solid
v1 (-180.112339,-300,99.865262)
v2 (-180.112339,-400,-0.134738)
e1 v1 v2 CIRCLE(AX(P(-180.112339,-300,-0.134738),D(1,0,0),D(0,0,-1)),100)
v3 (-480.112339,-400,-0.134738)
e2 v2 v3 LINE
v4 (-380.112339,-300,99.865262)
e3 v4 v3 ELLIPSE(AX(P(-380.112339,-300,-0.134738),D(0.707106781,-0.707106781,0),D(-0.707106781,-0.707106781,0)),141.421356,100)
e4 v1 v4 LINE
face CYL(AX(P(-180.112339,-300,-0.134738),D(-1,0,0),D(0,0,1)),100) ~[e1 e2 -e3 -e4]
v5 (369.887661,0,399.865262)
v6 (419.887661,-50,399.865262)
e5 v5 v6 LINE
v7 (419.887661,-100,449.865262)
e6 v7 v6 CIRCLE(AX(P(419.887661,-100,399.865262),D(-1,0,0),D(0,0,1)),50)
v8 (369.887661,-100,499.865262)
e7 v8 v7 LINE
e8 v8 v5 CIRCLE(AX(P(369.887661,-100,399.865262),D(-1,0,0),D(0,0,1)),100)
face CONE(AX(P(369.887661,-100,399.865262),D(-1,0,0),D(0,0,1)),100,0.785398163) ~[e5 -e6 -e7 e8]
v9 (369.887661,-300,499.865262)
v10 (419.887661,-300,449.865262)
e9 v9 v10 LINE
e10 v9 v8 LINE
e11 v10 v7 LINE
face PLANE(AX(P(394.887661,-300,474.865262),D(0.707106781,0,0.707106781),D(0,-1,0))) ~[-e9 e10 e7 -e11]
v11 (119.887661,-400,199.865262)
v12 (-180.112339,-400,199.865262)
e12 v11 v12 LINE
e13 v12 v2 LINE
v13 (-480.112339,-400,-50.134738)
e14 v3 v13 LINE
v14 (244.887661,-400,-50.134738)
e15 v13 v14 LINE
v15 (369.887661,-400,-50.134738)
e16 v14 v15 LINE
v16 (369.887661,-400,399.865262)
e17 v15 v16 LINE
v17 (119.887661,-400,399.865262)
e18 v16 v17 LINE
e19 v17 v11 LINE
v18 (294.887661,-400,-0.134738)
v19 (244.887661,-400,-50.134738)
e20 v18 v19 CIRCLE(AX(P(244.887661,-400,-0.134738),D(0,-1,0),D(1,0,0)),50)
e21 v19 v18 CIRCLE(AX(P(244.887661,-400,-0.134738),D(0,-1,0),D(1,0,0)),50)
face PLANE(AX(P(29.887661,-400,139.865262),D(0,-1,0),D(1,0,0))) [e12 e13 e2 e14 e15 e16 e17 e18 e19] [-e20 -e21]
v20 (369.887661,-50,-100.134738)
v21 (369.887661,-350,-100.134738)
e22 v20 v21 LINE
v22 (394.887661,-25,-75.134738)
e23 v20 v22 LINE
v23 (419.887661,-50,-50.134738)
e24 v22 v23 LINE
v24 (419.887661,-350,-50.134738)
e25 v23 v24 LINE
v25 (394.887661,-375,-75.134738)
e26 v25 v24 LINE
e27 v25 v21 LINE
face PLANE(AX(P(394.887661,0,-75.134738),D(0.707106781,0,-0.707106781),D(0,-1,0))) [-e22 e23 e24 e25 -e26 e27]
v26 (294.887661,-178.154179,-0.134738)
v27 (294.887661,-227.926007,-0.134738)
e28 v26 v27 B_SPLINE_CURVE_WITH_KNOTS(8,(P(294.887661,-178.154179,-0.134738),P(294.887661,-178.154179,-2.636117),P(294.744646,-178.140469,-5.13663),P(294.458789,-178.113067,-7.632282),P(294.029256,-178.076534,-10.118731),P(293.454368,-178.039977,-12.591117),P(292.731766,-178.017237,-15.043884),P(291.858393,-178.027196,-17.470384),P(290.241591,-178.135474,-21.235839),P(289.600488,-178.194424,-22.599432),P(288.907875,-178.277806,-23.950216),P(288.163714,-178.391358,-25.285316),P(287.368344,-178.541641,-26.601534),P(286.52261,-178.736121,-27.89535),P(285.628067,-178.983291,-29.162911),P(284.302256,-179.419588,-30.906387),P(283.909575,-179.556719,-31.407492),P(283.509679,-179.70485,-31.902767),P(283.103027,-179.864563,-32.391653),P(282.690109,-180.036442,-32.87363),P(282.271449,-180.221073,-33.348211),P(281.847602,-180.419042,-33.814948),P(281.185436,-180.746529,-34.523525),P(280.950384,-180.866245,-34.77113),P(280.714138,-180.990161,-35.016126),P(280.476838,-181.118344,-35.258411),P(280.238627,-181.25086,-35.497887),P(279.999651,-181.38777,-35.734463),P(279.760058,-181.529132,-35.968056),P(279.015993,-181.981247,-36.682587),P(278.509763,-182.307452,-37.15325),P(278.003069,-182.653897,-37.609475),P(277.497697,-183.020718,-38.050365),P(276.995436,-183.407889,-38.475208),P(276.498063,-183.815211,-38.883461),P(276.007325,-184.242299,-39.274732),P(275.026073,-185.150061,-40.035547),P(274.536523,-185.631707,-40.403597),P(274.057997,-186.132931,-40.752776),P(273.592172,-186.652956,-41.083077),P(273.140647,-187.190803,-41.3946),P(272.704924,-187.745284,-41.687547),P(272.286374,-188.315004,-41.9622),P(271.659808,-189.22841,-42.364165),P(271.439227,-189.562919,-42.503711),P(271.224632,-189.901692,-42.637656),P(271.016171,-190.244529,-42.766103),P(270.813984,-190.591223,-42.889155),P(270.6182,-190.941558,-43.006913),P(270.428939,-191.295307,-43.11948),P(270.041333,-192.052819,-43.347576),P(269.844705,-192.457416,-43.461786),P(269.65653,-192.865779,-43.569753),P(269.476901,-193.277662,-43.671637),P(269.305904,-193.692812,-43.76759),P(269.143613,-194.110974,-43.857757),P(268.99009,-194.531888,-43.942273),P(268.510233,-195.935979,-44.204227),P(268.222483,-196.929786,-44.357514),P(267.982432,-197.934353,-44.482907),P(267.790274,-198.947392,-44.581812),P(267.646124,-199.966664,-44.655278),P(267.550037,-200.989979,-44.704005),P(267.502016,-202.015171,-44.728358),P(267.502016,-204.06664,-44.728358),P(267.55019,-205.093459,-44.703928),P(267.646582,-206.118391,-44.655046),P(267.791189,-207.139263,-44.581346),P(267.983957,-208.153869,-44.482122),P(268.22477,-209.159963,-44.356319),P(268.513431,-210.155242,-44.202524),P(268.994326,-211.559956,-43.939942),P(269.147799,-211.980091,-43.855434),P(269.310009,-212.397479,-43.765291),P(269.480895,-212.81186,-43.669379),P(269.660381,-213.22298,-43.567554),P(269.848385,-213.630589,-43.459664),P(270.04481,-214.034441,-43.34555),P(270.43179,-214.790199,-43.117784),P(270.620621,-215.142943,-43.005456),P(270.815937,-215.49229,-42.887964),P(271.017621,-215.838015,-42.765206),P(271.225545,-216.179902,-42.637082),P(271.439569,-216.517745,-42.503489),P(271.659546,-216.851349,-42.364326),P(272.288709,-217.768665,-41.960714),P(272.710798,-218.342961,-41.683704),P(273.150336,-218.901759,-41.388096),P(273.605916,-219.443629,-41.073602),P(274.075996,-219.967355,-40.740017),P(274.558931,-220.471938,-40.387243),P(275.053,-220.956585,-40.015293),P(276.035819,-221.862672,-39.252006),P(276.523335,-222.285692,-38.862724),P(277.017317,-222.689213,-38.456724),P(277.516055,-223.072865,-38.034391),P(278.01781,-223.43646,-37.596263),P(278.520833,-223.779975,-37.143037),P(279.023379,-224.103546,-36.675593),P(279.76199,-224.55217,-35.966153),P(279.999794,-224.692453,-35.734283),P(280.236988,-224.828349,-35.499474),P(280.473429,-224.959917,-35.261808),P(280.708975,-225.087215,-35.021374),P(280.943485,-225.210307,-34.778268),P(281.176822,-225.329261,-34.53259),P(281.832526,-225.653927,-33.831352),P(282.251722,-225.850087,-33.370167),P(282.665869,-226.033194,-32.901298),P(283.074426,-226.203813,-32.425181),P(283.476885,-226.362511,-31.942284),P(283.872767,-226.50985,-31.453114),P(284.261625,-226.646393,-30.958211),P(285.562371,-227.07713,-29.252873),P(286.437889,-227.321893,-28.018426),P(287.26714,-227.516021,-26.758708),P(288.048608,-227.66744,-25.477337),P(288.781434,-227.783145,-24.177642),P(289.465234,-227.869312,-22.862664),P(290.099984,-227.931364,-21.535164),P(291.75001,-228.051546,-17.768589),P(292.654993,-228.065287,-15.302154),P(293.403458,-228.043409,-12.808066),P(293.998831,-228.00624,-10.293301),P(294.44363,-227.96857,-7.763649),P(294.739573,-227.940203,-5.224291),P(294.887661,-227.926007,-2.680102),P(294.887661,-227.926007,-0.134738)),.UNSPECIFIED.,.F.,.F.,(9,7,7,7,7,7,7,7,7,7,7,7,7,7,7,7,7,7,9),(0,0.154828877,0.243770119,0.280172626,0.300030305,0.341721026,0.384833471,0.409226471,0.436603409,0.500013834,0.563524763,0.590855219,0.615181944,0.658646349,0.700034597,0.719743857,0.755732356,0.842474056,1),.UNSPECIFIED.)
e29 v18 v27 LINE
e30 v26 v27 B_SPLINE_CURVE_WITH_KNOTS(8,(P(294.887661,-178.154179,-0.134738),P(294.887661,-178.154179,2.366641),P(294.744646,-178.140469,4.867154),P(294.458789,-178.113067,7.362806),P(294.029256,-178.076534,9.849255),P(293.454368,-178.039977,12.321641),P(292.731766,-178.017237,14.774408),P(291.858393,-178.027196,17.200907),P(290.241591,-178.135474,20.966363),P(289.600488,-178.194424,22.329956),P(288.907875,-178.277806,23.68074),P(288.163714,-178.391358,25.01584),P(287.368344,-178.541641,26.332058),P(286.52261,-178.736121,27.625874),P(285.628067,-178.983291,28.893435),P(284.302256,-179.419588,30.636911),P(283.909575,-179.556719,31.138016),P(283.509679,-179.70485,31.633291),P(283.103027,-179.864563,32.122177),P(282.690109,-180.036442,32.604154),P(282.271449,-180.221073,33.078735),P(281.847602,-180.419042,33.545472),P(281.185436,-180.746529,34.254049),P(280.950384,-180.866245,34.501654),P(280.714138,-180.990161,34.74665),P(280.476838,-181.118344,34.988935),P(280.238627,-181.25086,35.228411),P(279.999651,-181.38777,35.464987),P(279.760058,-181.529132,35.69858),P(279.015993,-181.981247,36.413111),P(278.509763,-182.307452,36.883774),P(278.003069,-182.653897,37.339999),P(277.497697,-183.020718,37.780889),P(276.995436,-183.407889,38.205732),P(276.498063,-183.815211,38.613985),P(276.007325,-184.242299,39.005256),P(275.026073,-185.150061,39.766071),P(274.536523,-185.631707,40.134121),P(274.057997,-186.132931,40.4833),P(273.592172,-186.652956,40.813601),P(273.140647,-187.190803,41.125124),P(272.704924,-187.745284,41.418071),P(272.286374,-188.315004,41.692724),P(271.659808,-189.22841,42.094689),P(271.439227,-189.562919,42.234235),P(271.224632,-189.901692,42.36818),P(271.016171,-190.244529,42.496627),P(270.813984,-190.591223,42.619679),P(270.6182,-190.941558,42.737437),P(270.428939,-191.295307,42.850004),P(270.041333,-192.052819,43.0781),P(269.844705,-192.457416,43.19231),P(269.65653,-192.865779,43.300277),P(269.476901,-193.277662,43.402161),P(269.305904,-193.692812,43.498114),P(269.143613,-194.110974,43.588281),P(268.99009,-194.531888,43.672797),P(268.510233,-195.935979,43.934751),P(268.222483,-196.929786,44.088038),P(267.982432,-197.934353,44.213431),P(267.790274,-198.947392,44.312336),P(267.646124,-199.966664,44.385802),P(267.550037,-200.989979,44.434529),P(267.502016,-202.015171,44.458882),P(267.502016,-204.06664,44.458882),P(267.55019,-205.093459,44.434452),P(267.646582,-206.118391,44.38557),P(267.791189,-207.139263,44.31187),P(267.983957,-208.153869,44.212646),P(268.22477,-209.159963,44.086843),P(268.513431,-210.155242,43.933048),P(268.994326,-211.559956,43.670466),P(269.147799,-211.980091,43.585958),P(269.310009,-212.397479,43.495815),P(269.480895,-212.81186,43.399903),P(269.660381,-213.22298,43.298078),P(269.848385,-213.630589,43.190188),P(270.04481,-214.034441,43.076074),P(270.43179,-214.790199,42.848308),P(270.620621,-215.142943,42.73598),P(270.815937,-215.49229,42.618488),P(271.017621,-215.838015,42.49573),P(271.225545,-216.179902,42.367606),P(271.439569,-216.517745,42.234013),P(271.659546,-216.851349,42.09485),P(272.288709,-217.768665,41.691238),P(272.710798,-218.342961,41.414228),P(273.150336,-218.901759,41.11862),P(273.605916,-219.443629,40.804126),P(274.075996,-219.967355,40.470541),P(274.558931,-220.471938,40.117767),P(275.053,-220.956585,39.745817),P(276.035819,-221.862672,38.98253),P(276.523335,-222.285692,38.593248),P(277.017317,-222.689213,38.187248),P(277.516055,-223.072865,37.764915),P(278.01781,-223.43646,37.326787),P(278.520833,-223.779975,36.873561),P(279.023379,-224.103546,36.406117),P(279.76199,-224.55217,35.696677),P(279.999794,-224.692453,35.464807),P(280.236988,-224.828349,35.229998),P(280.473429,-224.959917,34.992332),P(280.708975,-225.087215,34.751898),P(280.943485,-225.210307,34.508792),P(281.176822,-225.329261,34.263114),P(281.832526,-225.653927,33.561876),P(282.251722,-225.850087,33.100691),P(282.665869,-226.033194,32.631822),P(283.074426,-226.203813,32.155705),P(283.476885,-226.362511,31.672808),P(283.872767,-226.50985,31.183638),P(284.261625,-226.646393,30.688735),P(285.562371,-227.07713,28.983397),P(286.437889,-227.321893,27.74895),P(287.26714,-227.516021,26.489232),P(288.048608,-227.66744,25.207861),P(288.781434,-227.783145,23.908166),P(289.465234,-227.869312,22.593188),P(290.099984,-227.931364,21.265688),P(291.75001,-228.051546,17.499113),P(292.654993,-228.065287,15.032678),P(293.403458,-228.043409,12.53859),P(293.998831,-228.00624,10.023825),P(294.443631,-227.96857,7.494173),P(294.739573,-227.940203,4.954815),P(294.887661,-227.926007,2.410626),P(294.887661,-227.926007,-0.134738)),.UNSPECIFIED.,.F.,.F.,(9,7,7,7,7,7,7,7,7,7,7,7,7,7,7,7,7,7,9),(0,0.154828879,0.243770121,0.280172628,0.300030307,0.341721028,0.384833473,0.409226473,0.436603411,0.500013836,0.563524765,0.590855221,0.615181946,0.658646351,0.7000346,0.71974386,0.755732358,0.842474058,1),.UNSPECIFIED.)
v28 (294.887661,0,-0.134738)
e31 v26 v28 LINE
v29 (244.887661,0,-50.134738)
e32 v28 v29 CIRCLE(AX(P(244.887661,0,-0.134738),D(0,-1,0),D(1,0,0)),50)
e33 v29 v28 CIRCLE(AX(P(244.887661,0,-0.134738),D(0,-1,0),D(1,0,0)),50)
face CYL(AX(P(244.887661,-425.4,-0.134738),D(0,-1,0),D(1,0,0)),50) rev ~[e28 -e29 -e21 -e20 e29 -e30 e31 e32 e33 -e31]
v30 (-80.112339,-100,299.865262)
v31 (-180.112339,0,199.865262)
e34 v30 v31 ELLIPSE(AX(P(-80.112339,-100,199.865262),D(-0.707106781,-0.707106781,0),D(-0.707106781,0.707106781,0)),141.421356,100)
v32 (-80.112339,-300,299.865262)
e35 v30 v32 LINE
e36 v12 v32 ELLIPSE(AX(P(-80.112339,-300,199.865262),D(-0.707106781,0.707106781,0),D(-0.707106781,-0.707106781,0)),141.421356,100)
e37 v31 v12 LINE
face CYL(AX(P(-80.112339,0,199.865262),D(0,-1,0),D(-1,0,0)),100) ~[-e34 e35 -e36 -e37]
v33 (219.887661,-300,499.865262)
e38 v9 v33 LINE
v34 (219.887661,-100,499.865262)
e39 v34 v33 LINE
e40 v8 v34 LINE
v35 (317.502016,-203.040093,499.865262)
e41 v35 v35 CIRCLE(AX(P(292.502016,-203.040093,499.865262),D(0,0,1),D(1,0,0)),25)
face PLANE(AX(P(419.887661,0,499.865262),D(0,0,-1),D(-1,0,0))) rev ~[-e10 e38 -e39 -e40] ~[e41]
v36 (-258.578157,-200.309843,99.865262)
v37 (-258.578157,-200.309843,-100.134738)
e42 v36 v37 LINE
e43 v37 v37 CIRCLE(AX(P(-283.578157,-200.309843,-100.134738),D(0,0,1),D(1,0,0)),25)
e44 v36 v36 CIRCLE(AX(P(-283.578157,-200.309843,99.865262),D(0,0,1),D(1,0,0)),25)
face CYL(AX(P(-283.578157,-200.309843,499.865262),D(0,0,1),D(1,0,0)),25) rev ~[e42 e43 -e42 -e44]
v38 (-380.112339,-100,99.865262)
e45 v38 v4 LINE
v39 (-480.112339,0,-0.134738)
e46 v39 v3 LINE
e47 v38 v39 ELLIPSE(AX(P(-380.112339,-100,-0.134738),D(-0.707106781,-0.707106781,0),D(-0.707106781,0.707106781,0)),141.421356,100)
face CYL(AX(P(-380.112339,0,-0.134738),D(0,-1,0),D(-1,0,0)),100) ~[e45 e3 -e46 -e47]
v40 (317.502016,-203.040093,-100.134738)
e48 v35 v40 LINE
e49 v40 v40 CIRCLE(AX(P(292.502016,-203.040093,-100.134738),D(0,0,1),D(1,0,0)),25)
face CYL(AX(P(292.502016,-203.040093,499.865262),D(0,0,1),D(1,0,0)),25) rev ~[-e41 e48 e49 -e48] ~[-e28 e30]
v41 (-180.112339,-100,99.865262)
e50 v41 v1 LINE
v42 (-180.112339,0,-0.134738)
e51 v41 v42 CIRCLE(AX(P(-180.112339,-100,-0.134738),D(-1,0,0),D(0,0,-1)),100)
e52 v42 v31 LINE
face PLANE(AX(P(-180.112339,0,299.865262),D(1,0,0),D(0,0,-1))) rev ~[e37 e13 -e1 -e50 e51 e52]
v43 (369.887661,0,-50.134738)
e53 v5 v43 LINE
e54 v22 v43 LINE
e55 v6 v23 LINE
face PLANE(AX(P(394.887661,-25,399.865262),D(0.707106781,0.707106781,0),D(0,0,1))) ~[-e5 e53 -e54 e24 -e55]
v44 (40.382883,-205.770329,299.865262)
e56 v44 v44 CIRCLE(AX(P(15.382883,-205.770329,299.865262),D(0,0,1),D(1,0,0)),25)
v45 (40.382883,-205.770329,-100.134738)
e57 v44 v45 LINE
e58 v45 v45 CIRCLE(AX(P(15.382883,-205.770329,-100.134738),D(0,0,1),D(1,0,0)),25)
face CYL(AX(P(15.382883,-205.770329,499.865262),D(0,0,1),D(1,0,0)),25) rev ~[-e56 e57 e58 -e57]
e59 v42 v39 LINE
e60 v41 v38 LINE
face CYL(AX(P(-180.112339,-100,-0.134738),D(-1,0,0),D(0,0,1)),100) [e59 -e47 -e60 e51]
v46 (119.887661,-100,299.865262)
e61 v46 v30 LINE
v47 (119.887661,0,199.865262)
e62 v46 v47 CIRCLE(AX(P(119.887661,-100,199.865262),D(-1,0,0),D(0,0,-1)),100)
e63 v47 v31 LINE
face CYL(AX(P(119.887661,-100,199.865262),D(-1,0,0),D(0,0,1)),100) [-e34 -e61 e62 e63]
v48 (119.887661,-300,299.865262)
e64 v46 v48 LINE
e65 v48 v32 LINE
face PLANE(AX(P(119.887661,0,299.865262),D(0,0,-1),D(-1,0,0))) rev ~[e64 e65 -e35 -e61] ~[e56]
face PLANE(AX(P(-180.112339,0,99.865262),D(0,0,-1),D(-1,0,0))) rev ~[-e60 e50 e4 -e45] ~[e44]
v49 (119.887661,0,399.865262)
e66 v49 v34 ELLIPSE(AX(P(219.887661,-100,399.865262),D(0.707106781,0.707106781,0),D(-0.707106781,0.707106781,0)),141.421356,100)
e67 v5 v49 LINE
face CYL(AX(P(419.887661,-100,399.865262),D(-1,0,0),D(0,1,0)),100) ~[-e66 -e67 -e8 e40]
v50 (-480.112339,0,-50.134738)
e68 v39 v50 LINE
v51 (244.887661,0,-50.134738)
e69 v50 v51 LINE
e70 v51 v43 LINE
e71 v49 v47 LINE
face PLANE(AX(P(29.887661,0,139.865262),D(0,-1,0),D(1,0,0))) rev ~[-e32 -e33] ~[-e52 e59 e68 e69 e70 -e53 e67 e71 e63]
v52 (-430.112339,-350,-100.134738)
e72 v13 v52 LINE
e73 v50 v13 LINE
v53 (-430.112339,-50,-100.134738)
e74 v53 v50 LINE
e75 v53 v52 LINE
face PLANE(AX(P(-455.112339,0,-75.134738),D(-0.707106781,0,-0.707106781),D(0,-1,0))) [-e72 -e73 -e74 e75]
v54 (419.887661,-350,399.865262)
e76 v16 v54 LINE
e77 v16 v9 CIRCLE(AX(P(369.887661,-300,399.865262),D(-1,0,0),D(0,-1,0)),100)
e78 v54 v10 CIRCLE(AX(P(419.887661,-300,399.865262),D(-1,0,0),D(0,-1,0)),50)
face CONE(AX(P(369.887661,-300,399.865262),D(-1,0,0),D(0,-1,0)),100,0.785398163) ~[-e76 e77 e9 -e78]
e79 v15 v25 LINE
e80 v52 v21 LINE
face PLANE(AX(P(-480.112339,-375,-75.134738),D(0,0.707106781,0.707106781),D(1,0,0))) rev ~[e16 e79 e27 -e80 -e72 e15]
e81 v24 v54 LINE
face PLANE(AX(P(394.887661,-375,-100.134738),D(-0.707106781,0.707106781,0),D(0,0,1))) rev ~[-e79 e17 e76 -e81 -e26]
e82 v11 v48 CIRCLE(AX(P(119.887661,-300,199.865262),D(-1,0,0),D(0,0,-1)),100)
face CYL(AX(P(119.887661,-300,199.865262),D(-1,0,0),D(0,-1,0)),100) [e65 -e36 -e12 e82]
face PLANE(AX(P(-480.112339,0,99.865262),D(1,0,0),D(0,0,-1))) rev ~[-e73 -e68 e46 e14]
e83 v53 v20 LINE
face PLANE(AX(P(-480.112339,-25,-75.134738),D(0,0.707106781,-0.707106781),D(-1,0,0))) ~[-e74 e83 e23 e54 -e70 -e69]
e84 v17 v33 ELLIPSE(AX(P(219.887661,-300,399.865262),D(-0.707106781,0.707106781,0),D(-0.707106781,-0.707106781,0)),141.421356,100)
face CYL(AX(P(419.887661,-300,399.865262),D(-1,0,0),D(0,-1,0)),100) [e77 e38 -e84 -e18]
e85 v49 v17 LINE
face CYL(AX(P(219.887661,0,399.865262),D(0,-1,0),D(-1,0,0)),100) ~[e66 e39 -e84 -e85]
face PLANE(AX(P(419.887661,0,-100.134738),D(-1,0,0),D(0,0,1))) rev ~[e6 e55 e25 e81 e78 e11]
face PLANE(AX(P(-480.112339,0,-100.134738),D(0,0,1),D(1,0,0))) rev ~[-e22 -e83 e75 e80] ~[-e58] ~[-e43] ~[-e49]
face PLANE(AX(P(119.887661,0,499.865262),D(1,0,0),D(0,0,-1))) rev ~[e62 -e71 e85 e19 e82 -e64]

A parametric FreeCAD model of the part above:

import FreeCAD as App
import Part
import Sketcher

V = App.Vector
Q = App.Units.Quantity


def edges_at(feature, points):
    """Names of the edges that pass closest to the given points."""
    edges = feature.Shape.Edges
    near = lambda p: min(range(len(edges)), key=lambda i: edges[i].distToShape(Part.Vertex(*p))[0])
    return sorted({f"Edge{near(p) + 1}" for p in points})

doc = App.newDocument("Part")
body = doc.addObject("PartDesign::Body", "Body")

sketch1 = doc.addObject("Sketcher::SketchObject", "Sketch")
body.addObject(sketch1)
sketch1.AttachmentSupport = (doc.XZ_Plane, [""])
sketch1.MapMode = "FlatFace"
sketch1.addGeometry([
    Part.LineSegment(V(-480.112339, 99.865262, 0), V(-480.112339, -100.134738, 0)),
    Part.LineSegment(V(-480.112339, -100.134738, 0), V(419.887661, -100.134738, 0)),
    Part.LineSegment(V(419.887661, -100.134738, 0), V(419.887661, 499.865262, 0)),
    Part.LineSegment(V(419.887661, 499.865262, 0), V(119.887661, 499.865262, 0)),
    Part.LineSegment(V(119.887661, 499.865262, 0), V(119.887661, 299.865262, 0)),
    Part.LineSegment(V(119.887661, 299.865262, 0), V(-180.112339, 299.865262, 0)),
    Part.LineSegment(V(-180.112339, 299.865262, 0), V(-180.112339, 99.865262, 0)),
    Part.LineSegment(V(-180.112339, 99.865262, 0), V(-480.112339, 99.865262, 0)),
], False)
sketch1.addConstraint([
    Sketcher.Constraint("Coincident", 0, 2, 1, 1),
    Sketcher.Constraint("Coincident", 1, 2, 2, 1),
    Sketcher.Constraint("Coincident", 2, 2, 3, 1),
    Sketcher.Constraint("Coincident", 3, 2, 4, 1),
    Sketcher.Constraint("Coincident", 4, 2, 5, 1),
    Sketcher.Constraint("Coincident", 5, 2, 6, 1),
    Sketcher.Constraint("Coincident", 6, 2, 7, 1),
    Sketcher.Constraint("Coincident", 7, 2, 0, 1),
    Sketcher.Constraint("Vertical", 0),
    Sketcher.Constraint("Horizontal", 1),
    Sketcher.Constraint("Vertical", 2),
    Sketcher.Constraint("Horizontal", 3),
    Sketcher.Constraint("Vertical", 4),
    Sketcher.Constraint("Horizontal", 5),
    Sketcher.Constraint("Vertical", 6),
    Sketcher.Constraint("Horizontal", 7),
    Sketcher.Constraint("Equal", 3, 5),
    Sketcher.Constraint("Equal", 5, 7),
    Sketcher.Constraint("Equal", 0, 4),
    Sketcher.Constraint("Equal", 4, 6),
    Sketcher.Constraint("DistanceX", 1, 1, 1, 2, Q("900 mm")),
    Sketcher.Constraint("DistanceY", 0, 2, 0, 1, Q("200 mm")),
    Sketcher.Constraint("DistanceX", 0, 2, -1, 1, Q("480.112339 mm")),
    Sketcher.Constraint("DistanceY", 0, 2, -1, 1, Q("100.134738 mm")),
])
pad1 = doc.addObject("PartDesign::Pad", "Pad")
body.addObject(pad1)
pad1.Profile = sketch1
pad1.Length = 400
doc.recompute()

fillet = doc.addObject("PartDesign::Fillet", "Fillet")
body.addObject(fillet)
fillet.Base = (pad1, edges_at(pad1, [(-330.112, 0, 99.865), (-330.112, -400, 99.865), (-480.112, -200, 99.865)]))
fillet.Radius = 100
doc.recompute()

fillet2 = doc.addObject("PartDesign::Fillet", "Fillet001")
body.addObject(fillet2)
fillet2.Base = (fillet, edges_at(fillet, [(-30.112, 0, 299.865), (-180.112, -200, 299.865), (-30.112, -400, 299.865)]))
fillet2.Radius = 100
doc.recompute()

fillet3 = doc.addObject("PartDesign::Fillet", "Fillet002")
body.addObject(fillet3)
fillet3.Base = (fillet2, edges_at(fillet2, [(269.888, 0, 499.865), (119.888, -200, 499.865), (269.888, -400, 499.865)]))
fillet3.Radius = 100
doc.recompute()

chamfer = doc.addObject("PartDesign::Chamfer", "Chamfer")
body.addObject(chamfer)
chamfer.Base = (fillet3, edges_at(fillet3, [(419.888, -400, 149.865), (419.888, -200, -100.135)]))
chamfer.Size = 50
doc.recompute()

chamfer2 = doc.addObject("PartDesign::Chamfer", "Chamfer001")
body.addObject(chamfer2)
chamfer2.Base = (chamfer, edges_at(chamfer, [(-55.112, -400, -100.135), (-480.112, -200, -100.135), (-55.112, 0, -100.135)]))
chamfer2.Size = 50

sketch2 = doc.addObject("Sketcher::SketchObject", "Sketch001")
body.addObject(sketch2)
sketch2.AttachmentSupport = (doc.XZ_Plane, [""])
sketch2.MapMode = "FlatFace"
sketch2.AttachmentOffset = App.Placement(V(0, 0, 400), App.Rotation())
sketch2.addGeometry(Part.Circle(V(244.887661, -0.134738, 0), V(0, 0, 1), 50), False)
sketch2.addConstraint([
    Sketcher.Constraint("Diameter", 0, Q("100 mm")),
    Sketcher.Constraint("DistanceX", -1, 1, 0, 3, Q("244.887661 mm")),
    Sketcher.Constraint("DistanceY", 0, 3, -1, 1, Q("0.134738 mm")),
])
pad2 = doc.addObject("PartDesign::Pad", "Pad001")
body.addObject(pad2)
pad2.Profile = sketch2
pad2.Length = 25.4

sketch3 = doc.addObject("Sketcher::SketchObject", "Sketch002")
body.addObject(sketch3)
sketch3.AttachmentSupport = (doc.XZ_Plane, [""])
sketch3.MapMode = "FlatFace"
sketch3.AttachmentOffset = App.Placement(V(0, 0, 425.4), App.Rotation())
sketch3.addGeometry(Part.Circle(V(244.887661, -0.134738, 0), V(0, 0, 1), 50), False)
sketch3.addConstraint([
    Sketcher.Constraint("Diameter", 0, Q("100 mm")),
    Sketcher.Constraint("DistanceX", -1, 1, 0, 3, Q("244.887661 mm")),
    Sketcher.Constraint("DistanceY", 0, 3, -1, 1, Q("0.134738 mm")),
])
pocket1 = doc.addObject("PartDesign::Pocket", "Pocket")
body.addObject(pocket1)
pocket1.Profile = sketch3
pocket1.Type = "ThroughAll"

sketch4 = doc.addObject("Sketcher::SketchObject", "Sketch003")
body.addObject(sketch4)
sketch4.AttachmentSupport = (doc.XY_Plane, [""])
sketch4.MapMode = "FlatFace"
sketch4.AttachmentOffset = App.Placement(V(0, 0, 499.865262), App.Rotation())
sketch4.addGeometry([
    Part.Circle(V(292.502016, -203.040093, 0), V(0, 0, 1), 25),
    Part.Circle(V(15.382883, -205.770329, 0), V(0, 0, 1), 25),
    Part.Circle(V(-283.578157, -200.309843, 0), V(0, 0, 1), 25),
], False)
sketch4.addConstraint([
    Sketcher.Constraint("Equal", 0, 1),
    Sketcher.Constraint("Equal", 1, 2),
    Sketcher.Constraint("Diameter", 0, Q("50 mm")),
    Sketcher.Constraint("DistanceY", 1, 3, -1, 1, Q("205.770329 mm")),
    Sketcher.Constraint("DistanceX", 2, 3, 1, 3, Q("298.96104 mm")),
    Sketcher.Constraint("DistanceY", 0, 3, 2, 3, Q("2.73025 mm")),
    Sketcher.Constraint("DistanceX", -1, 1, 0, 3, Q("292.502016 mm")),
    Sketcher.Constraint("DistanceY", 0, 3, -1, 1, Q("203.040093 mm")),
    Sketcher.Constraint("DistanceX", -1, 1, 1, 3, Q("15.382883 mm")),
])
pocket2 = doc.addObject("PartDesign::Pocket", "Pocket001")
body.addObject(pocket2)
pocket2.Profile = sketch4
pocket2.Type = "ThroughAll"

doc.recompute()
